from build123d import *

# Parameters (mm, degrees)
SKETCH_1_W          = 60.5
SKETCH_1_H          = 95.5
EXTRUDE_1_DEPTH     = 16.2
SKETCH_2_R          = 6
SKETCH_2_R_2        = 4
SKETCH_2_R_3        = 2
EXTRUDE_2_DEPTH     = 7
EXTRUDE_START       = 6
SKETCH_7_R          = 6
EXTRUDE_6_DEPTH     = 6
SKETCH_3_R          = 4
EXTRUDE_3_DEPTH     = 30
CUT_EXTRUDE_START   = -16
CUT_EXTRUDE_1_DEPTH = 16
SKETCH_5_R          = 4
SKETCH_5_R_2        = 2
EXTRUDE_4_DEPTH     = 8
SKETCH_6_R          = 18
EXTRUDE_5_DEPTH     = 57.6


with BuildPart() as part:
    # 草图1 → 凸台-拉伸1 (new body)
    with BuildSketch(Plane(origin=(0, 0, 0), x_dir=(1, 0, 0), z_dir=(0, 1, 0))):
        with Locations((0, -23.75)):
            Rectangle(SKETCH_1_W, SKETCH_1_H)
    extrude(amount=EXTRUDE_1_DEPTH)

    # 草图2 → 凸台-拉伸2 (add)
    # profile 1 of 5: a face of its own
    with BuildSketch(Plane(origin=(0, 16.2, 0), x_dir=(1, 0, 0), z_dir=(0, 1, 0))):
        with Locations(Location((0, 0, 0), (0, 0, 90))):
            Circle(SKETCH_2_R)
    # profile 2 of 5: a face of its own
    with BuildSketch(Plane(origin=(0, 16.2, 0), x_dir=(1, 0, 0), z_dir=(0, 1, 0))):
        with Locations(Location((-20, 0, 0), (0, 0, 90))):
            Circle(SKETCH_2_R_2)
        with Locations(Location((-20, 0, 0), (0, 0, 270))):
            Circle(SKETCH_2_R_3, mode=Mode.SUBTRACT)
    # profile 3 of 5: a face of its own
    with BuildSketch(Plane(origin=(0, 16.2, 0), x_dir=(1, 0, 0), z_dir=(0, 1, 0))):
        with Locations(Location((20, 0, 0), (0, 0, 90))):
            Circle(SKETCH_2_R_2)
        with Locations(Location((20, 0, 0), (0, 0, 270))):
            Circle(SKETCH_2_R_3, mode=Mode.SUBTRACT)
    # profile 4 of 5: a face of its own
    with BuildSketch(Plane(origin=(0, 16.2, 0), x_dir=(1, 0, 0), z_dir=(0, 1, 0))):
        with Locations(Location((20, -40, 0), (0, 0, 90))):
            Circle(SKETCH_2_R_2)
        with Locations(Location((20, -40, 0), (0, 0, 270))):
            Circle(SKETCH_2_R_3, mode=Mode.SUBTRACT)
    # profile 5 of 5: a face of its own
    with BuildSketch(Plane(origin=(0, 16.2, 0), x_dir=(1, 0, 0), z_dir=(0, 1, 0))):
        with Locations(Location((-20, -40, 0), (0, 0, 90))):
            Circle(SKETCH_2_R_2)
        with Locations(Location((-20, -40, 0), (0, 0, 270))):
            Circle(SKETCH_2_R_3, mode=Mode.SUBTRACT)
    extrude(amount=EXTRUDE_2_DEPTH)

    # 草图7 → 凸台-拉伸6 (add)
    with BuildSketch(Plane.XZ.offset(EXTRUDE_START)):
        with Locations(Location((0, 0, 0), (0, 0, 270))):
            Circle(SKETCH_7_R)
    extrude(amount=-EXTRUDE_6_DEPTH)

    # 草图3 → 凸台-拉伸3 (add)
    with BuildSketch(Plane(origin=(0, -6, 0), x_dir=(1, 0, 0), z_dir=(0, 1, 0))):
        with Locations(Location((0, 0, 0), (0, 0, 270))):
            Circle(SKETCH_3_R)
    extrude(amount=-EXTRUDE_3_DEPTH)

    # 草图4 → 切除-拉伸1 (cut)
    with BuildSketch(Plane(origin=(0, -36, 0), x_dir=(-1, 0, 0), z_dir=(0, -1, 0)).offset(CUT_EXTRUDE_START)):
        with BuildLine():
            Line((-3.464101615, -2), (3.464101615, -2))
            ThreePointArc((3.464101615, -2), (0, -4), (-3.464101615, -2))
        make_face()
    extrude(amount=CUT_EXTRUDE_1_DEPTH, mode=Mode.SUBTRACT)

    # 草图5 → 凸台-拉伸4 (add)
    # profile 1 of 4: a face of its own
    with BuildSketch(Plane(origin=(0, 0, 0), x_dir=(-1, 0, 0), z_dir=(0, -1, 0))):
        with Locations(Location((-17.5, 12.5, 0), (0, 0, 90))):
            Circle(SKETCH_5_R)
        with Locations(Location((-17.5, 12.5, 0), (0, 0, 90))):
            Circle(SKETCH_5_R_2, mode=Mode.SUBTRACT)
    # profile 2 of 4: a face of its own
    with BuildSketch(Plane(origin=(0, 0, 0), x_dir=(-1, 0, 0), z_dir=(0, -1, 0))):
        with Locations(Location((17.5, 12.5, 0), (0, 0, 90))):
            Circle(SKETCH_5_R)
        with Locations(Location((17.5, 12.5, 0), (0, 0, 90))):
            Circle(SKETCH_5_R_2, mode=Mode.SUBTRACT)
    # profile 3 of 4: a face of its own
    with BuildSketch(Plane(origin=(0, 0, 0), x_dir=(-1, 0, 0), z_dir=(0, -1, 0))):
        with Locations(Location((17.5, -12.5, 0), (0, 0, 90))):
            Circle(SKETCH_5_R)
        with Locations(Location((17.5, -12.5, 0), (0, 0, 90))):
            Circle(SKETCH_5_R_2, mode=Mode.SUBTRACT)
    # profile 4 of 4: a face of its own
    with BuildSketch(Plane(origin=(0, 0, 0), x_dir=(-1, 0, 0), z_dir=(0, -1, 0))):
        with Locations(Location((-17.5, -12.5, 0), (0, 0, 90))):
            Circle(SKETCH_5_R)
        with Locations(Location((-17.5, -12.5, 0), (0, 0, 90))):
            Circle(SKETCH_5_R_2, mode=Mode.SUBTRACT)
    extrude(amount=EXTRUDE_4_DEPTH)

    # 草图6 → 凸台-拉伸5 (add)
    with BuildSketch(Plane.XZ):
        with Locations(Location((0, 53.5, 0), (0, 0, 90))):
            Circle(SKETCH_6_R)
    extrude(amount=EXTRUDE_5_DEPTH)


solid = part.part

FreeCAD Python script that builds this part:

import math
import FreeCAD as App
import Part
import Sketcher
from FreeCAD import Vector


def add_polygon(sketch, points):
    """Adds a closed chain of lines whose ends are joined by coincident constraints."""
    first, n = sketch.GeometryCount, len(points)
    for a, b in zip(points, points[1:] + points[:1]):
        sketch.addGeometry(Part.LineSegment(App.Vector(*a, 0), App.Vector(*b, 0)), False)
    for i in range(n):
        sketch.addConstraint(Sketcher.Constraint("Coincident", first + i, 2, first + (i + 1) % n, 1))

doc = App.newDocument("Part")
body = doc.addObject("PartDesign::Body", "Body")

# Sketch on XZ plane
sketch1 = doc.addObject("Sketcher::SketchObject", "Sketch")
body.addObject(sketch1)
sketch1.AttachmentSupport = (doc.XZ_Plane, [""])
sketch1.MapMode = "FlatFace"
add_polygon(sketch1, [(-30, -24), (-30, 72), (30, 72), (30, -24)])  # lines 0-3
sketch1.addConstraint([
    Sketcher.Constraint("Vertical", 0),
    Sketcher.Constraint("Horizontal", 1),
    Sketcher.Constraint("Vertical", 2),
    Sketcher.Constraint("Horizontal", 3),
    Sketcher.Constraint("DistanceX", 1, 1, 1, 2, 60.5),
    Sketcher.Constraint("DistanceY", 0, 1, 0, 2, 95.5),
    Sketcher.Constraint("DistanceY", 2, 2, -1, 1, 24.0),
    Sketcher.Constraint("DistanceX", 0, 2, -1, 1, 30.25),
])
pad1 = doc.addObject("PartDesign::Pad", "Pad")
body.addObject(pad1)
pad1.Profile = sketch1
pad1.Length = 16.2
pad1.Reversed = True

# Sketch on XZ plane
sketch2 = doc.addObject("Sketcher::SketchObject", "Sketch001")
body.addObject(sketch2)
sketch2.AttachmentSupport = (doc.XZ_Plane, [""])
sketch2.MapMode = "FlatFace"
sketch2.AttachmentOffset = App.Placement(Vector(0, 0, -16.2), App.Rotation())
sketch2.addGeometry([
    Part.Circle(Vector(0, 0, 0), Vector(0, 0, 1), 6),  # 0
    Part.Circle(Vector(-20, 0, 0), Vector(0, 0, 1), 4),  # 1
    Part.Circle(Vector(-20, 0, 0), Vector(0, 0, 1), 2),  # 2
    Part.Circle(Vector(20, 0, 0), Vector(0, 0, 1), 4),  # 3
    Part.Circle(Vector(20, 0, 0), Vector(0, 0, 1), 2),  # 4
    Part.Circle(Vector(20, 40, 0), Vector(0, 0, 1), 4),  # 5
    Part.Circle(Vector(20, 40, 0), Vector(0, 0, 1), 2),  # 6
    Part.Circle(Vector(-20, 40, 0), Vector(0, 0, 1), 4),  # 7
    Part.Circle(Vector(-20, 40, 0), Vector(0, 0, 1), 2),  # 8
], False)
sketch2.addConstraint([
    Sketcher.Constraint("Coincident", 0, 3, -1, 1),
    Sketcher.Constraint("Coincident", 2, 3, 1, 3),
    Sketcher.Constraint("Coincident", 4, 3, 3, 3),
    Sketcher.Constraint("Coincident", 6, 3, 5, 3),
    Sketcher.Constraint("Coincident", 8, 3, 7, 3),
    Sketcher.Constraint("Equal", 1, 3),
    Sketcher.Constraint("Equal", 2, 4),
    Sketcher.Constraint("Equal", 3, 5),
    Sketcher.Constraint("Equal", 4, 6),
    Sketcher.Constraint("Equal", 5, 7),
    Sketcher.Constraint("Equal", 6, 8),
    Sketcher.Constraint("Symmetric", 1, 3, 3, 3, -1, 1),
    Sketcher.Constraint("Symmetric", 5, 3, 7, 3, -2),
    Sketcher.Constraint("PointOnObject", 1, 3, -1),
    Sketcher.Constraint("Vertical", 4, 3, 5, 3),
    Sketcher.Constraint("Diameter", 0, 12.0),
    Sketcher.Constraint("Diameter", 1, 8.0),
    Sketcher.Constraint("Diameter", 2, 4.0),
    Sketcher.Constraint("DistanceX", 1, 3, -1, 1, 20.0),
    Sketcher.Constraint("DistanceY", -1, 1, 5, 3, 40.0),
])
pad2 = doc.addObject("PartDesign::Pad", "Pad001")
body.addObject(pad2)
pad2.Profile = sketch2
pad2.Length = 7
pad2.Reversed = True

# Sketch on XZ plane
sketch3 = doc.addObject("Sketcher::SketchObject", "Sketch002")
body.addObject(sketch3)
sketch3.AttachmentSupport = (doc.XZ_Plane, [""])
sketch3.MapMode = "FlatFace"
sketch3.AttachmentOffset = App.Placement(Vector(0, 0, 6), App.Rotation())
sketch3.addGeometry(Part.Circle(Vector(0, 0, 0), Vector(0, 0, 1), 6), False)
sketch3.addConstraint([
    Sketcher.Constraint("Coincident", 0, 3, -1, 1),
    Sketcher.Constraint("Diameter", 0, 12.0),
])
pad3 = doc.addObject("PartDesign::Pad", "Pad002")
body.addObject(pad3)
pad3.Profile = sketch3
pad3.Length = 6
pad3.Reversed = True

# Sketch on XZ plane
sketch4 = doc.addObject("Sketcher::SketchObject", "Sketch003")
body.addObject(sketch4)
sketch4.AttachmentSupport = (doc.XZ_Plane, [""])
sketch4.MapMode = "FlatFace"
sketch4.AttachmentOffset = App.Placement(Vector(0, 0, 6), App.Rotation())
sketch4.addGeometry(Part.Circle(Vector(0, 0, 0), Vector(0, 0, 1), 4), False)
sketch4.addConstraint([
    Sketcher.Constraint("Coincident", 0, 3, -1, 1),
    Sketcher.Constraint("Diameter", 0, 8.0),
])
pad4 = doc.addObject("PartDesign::Pad", "Pad003")
body.addObject(pad4)
pad4.Profile = sketch4
pad4.Length = 30

# Sketch on XZ plane
sketch5 = doc.addObject("Sketcher::SketchObject", "Sketch004")
body.addObject(sketch5)
sketch5.AttachmentSupport = (doc.XZ_Plane, [""])
sketch5.MapMode = "FlatFace"
sketch5.AttachmentOffset = App.Placement(Vector(0, 0, 20), App.Rotation())
sketch5.addGeometry([
    Part.LineSegment(Vector(-3.5, 2, 0), Vector(3.5, 2, 0)),
    Part.ArcOfCircle(Part.Circle(Vector(0, 0, 0), Vector(0, 0, 1), 4), math.radians(30), math.radians(150)),
], False)
sketch5.addConstraint([
    Sketcher.Constraint("Coincident", 0, 1, 1, 2),
    Sketcher.Constraint("Coincident", 1, 1, 0, 2),
    Sketcher.Constraint("Horizontal", 0),
    Sketcher.Constraint("Coincident", 1, 3, -1, 1),
    Sketcher.Constraint("Radius", 1, 4.0),
    Sketcher.Constraint("DistanceY", -1, 1, 0, 1, 2.0),
])
pocket1 = doc.addObject("PartDesign::Pocket", "Pocket")
body.addObject(pocket1)
pocket1.Profile = sketch5
pocket1.Length = 16
pocket1.Reversed = True

# Sketch on XZ plane
sketch6 = doc.addObject("Sketcher::SketchObject", "Sketch005")
body.addObject(sketch6)
sketch6.AttachmentSupport = (doc.XZ_Plane, [""])
sketch6.MapMode = "FlatFace"
sketch6.addGeometry([
    Part.Circle(Vector(17.5, -12.5, 0), Vector(0, 0, 1), 4),  # 0
    Part.Circle(Vector(17.5, -12.5, 0), Vector(0, 0, 1), 2),  # 1
    Part.Circle(Vector(-17.5, -12.5, 0), Vector(0, 0, 1), 4),  # 2
    Part.Circle(Vector(-17.5, -12.5, 0), Vector(0, 0, 1), 2),  # 3
    Part.Circle(Vector(-17.5, 12.5, 0), Vector(0, 0, 1), 4),  # 4
    Part.Circle(Vector(-17.5, 12.5, 0), Vector(0, 0, 1), 2),  # 5
    Part.Circle(Vector(17.5, 12.5, 0), Vector(0, 0, 1), 4),  # 6
    Part.Circle(Vector(17.5, 12.5, 0), Vector(0, 0, 1), 2),  # 7
], False)
sketch6.addConstraint([
    Sketcher.Constraint("Coincident", 1, 3, 0, 3),
    Sketcher.Constraint("Coincident", 3, 3, 2, 3),
    Sketcher.Constraint("Coincident", 5, 3, 4, 3),
    Sketcher.Constraint("Coincident", 7, 3, 6, 3),
    Sketcher.Constraint("Equal", 0, 2),
    Sketcher.Constraint("Equal", 1, 3),
    Sketcher.Constraint("Equal", 2, 4),
    Sketcher.Constraint("Equal", 3, 5),
    Sketcher.Constraint("Equal", 4, 6),
    Sketcher.Constraint("Equal", 5, 7),
    Sketcher.Constraint("Symmetric", 0, 3, 4, 3, -1, 1),
    Sketcher.Constraint("Symmetric", 2, 3, 6, 3, -1, 1),
    Sketcher.Constraint("Symmetric", 0, 3, 2, 3, -2),
    Sketcher.Constraint("Diameter", 0, 8.0),
    Sketcher.Constraint("Diameter", 1, 4.0),
    Sketcher.Constraint("DistanceX", 2, 3, 0, 3, 35.0),
    Sketcher.Constraint("DistanceY", 2, 3, 4, 3, 25.0),
])
pad5 = doc.addObject("PartDesign::Pad", "Pad004")
body.addObject(pad5)
pad5.Profile = sketch6
pad5.Length = 8

# Sketch on XZ plane
sketch7 = doc.addObject("Sketcher::SketchObject", "Sketch006")
body.addObject(sketch7)
sketch7.AttachmentSupport = (doc.XZ_Plane, [""])
sketch7.MapMode = "FlatFace"
sketch7.addGeometry(Part.Circle(Vector(0, 54, 0), Vector(0, 0, 1), 18), False)
sketch7.addConstraint([
    Sketcher.Constraint("PointOnObject", 0, 3, -2),
    Sketcher.Constraint("Diameter", 0, 36.0),
    Sketcher.Constraint("DistanceY", -1, 1, 0, 3, 53.5),
])
pad6 = doc.addObject("PartDesign::Pad", "Pad005")
body.addObject(pad6)
pad6.Profile = sketch7
pad6.Length = 57.6

doc.recompute()
